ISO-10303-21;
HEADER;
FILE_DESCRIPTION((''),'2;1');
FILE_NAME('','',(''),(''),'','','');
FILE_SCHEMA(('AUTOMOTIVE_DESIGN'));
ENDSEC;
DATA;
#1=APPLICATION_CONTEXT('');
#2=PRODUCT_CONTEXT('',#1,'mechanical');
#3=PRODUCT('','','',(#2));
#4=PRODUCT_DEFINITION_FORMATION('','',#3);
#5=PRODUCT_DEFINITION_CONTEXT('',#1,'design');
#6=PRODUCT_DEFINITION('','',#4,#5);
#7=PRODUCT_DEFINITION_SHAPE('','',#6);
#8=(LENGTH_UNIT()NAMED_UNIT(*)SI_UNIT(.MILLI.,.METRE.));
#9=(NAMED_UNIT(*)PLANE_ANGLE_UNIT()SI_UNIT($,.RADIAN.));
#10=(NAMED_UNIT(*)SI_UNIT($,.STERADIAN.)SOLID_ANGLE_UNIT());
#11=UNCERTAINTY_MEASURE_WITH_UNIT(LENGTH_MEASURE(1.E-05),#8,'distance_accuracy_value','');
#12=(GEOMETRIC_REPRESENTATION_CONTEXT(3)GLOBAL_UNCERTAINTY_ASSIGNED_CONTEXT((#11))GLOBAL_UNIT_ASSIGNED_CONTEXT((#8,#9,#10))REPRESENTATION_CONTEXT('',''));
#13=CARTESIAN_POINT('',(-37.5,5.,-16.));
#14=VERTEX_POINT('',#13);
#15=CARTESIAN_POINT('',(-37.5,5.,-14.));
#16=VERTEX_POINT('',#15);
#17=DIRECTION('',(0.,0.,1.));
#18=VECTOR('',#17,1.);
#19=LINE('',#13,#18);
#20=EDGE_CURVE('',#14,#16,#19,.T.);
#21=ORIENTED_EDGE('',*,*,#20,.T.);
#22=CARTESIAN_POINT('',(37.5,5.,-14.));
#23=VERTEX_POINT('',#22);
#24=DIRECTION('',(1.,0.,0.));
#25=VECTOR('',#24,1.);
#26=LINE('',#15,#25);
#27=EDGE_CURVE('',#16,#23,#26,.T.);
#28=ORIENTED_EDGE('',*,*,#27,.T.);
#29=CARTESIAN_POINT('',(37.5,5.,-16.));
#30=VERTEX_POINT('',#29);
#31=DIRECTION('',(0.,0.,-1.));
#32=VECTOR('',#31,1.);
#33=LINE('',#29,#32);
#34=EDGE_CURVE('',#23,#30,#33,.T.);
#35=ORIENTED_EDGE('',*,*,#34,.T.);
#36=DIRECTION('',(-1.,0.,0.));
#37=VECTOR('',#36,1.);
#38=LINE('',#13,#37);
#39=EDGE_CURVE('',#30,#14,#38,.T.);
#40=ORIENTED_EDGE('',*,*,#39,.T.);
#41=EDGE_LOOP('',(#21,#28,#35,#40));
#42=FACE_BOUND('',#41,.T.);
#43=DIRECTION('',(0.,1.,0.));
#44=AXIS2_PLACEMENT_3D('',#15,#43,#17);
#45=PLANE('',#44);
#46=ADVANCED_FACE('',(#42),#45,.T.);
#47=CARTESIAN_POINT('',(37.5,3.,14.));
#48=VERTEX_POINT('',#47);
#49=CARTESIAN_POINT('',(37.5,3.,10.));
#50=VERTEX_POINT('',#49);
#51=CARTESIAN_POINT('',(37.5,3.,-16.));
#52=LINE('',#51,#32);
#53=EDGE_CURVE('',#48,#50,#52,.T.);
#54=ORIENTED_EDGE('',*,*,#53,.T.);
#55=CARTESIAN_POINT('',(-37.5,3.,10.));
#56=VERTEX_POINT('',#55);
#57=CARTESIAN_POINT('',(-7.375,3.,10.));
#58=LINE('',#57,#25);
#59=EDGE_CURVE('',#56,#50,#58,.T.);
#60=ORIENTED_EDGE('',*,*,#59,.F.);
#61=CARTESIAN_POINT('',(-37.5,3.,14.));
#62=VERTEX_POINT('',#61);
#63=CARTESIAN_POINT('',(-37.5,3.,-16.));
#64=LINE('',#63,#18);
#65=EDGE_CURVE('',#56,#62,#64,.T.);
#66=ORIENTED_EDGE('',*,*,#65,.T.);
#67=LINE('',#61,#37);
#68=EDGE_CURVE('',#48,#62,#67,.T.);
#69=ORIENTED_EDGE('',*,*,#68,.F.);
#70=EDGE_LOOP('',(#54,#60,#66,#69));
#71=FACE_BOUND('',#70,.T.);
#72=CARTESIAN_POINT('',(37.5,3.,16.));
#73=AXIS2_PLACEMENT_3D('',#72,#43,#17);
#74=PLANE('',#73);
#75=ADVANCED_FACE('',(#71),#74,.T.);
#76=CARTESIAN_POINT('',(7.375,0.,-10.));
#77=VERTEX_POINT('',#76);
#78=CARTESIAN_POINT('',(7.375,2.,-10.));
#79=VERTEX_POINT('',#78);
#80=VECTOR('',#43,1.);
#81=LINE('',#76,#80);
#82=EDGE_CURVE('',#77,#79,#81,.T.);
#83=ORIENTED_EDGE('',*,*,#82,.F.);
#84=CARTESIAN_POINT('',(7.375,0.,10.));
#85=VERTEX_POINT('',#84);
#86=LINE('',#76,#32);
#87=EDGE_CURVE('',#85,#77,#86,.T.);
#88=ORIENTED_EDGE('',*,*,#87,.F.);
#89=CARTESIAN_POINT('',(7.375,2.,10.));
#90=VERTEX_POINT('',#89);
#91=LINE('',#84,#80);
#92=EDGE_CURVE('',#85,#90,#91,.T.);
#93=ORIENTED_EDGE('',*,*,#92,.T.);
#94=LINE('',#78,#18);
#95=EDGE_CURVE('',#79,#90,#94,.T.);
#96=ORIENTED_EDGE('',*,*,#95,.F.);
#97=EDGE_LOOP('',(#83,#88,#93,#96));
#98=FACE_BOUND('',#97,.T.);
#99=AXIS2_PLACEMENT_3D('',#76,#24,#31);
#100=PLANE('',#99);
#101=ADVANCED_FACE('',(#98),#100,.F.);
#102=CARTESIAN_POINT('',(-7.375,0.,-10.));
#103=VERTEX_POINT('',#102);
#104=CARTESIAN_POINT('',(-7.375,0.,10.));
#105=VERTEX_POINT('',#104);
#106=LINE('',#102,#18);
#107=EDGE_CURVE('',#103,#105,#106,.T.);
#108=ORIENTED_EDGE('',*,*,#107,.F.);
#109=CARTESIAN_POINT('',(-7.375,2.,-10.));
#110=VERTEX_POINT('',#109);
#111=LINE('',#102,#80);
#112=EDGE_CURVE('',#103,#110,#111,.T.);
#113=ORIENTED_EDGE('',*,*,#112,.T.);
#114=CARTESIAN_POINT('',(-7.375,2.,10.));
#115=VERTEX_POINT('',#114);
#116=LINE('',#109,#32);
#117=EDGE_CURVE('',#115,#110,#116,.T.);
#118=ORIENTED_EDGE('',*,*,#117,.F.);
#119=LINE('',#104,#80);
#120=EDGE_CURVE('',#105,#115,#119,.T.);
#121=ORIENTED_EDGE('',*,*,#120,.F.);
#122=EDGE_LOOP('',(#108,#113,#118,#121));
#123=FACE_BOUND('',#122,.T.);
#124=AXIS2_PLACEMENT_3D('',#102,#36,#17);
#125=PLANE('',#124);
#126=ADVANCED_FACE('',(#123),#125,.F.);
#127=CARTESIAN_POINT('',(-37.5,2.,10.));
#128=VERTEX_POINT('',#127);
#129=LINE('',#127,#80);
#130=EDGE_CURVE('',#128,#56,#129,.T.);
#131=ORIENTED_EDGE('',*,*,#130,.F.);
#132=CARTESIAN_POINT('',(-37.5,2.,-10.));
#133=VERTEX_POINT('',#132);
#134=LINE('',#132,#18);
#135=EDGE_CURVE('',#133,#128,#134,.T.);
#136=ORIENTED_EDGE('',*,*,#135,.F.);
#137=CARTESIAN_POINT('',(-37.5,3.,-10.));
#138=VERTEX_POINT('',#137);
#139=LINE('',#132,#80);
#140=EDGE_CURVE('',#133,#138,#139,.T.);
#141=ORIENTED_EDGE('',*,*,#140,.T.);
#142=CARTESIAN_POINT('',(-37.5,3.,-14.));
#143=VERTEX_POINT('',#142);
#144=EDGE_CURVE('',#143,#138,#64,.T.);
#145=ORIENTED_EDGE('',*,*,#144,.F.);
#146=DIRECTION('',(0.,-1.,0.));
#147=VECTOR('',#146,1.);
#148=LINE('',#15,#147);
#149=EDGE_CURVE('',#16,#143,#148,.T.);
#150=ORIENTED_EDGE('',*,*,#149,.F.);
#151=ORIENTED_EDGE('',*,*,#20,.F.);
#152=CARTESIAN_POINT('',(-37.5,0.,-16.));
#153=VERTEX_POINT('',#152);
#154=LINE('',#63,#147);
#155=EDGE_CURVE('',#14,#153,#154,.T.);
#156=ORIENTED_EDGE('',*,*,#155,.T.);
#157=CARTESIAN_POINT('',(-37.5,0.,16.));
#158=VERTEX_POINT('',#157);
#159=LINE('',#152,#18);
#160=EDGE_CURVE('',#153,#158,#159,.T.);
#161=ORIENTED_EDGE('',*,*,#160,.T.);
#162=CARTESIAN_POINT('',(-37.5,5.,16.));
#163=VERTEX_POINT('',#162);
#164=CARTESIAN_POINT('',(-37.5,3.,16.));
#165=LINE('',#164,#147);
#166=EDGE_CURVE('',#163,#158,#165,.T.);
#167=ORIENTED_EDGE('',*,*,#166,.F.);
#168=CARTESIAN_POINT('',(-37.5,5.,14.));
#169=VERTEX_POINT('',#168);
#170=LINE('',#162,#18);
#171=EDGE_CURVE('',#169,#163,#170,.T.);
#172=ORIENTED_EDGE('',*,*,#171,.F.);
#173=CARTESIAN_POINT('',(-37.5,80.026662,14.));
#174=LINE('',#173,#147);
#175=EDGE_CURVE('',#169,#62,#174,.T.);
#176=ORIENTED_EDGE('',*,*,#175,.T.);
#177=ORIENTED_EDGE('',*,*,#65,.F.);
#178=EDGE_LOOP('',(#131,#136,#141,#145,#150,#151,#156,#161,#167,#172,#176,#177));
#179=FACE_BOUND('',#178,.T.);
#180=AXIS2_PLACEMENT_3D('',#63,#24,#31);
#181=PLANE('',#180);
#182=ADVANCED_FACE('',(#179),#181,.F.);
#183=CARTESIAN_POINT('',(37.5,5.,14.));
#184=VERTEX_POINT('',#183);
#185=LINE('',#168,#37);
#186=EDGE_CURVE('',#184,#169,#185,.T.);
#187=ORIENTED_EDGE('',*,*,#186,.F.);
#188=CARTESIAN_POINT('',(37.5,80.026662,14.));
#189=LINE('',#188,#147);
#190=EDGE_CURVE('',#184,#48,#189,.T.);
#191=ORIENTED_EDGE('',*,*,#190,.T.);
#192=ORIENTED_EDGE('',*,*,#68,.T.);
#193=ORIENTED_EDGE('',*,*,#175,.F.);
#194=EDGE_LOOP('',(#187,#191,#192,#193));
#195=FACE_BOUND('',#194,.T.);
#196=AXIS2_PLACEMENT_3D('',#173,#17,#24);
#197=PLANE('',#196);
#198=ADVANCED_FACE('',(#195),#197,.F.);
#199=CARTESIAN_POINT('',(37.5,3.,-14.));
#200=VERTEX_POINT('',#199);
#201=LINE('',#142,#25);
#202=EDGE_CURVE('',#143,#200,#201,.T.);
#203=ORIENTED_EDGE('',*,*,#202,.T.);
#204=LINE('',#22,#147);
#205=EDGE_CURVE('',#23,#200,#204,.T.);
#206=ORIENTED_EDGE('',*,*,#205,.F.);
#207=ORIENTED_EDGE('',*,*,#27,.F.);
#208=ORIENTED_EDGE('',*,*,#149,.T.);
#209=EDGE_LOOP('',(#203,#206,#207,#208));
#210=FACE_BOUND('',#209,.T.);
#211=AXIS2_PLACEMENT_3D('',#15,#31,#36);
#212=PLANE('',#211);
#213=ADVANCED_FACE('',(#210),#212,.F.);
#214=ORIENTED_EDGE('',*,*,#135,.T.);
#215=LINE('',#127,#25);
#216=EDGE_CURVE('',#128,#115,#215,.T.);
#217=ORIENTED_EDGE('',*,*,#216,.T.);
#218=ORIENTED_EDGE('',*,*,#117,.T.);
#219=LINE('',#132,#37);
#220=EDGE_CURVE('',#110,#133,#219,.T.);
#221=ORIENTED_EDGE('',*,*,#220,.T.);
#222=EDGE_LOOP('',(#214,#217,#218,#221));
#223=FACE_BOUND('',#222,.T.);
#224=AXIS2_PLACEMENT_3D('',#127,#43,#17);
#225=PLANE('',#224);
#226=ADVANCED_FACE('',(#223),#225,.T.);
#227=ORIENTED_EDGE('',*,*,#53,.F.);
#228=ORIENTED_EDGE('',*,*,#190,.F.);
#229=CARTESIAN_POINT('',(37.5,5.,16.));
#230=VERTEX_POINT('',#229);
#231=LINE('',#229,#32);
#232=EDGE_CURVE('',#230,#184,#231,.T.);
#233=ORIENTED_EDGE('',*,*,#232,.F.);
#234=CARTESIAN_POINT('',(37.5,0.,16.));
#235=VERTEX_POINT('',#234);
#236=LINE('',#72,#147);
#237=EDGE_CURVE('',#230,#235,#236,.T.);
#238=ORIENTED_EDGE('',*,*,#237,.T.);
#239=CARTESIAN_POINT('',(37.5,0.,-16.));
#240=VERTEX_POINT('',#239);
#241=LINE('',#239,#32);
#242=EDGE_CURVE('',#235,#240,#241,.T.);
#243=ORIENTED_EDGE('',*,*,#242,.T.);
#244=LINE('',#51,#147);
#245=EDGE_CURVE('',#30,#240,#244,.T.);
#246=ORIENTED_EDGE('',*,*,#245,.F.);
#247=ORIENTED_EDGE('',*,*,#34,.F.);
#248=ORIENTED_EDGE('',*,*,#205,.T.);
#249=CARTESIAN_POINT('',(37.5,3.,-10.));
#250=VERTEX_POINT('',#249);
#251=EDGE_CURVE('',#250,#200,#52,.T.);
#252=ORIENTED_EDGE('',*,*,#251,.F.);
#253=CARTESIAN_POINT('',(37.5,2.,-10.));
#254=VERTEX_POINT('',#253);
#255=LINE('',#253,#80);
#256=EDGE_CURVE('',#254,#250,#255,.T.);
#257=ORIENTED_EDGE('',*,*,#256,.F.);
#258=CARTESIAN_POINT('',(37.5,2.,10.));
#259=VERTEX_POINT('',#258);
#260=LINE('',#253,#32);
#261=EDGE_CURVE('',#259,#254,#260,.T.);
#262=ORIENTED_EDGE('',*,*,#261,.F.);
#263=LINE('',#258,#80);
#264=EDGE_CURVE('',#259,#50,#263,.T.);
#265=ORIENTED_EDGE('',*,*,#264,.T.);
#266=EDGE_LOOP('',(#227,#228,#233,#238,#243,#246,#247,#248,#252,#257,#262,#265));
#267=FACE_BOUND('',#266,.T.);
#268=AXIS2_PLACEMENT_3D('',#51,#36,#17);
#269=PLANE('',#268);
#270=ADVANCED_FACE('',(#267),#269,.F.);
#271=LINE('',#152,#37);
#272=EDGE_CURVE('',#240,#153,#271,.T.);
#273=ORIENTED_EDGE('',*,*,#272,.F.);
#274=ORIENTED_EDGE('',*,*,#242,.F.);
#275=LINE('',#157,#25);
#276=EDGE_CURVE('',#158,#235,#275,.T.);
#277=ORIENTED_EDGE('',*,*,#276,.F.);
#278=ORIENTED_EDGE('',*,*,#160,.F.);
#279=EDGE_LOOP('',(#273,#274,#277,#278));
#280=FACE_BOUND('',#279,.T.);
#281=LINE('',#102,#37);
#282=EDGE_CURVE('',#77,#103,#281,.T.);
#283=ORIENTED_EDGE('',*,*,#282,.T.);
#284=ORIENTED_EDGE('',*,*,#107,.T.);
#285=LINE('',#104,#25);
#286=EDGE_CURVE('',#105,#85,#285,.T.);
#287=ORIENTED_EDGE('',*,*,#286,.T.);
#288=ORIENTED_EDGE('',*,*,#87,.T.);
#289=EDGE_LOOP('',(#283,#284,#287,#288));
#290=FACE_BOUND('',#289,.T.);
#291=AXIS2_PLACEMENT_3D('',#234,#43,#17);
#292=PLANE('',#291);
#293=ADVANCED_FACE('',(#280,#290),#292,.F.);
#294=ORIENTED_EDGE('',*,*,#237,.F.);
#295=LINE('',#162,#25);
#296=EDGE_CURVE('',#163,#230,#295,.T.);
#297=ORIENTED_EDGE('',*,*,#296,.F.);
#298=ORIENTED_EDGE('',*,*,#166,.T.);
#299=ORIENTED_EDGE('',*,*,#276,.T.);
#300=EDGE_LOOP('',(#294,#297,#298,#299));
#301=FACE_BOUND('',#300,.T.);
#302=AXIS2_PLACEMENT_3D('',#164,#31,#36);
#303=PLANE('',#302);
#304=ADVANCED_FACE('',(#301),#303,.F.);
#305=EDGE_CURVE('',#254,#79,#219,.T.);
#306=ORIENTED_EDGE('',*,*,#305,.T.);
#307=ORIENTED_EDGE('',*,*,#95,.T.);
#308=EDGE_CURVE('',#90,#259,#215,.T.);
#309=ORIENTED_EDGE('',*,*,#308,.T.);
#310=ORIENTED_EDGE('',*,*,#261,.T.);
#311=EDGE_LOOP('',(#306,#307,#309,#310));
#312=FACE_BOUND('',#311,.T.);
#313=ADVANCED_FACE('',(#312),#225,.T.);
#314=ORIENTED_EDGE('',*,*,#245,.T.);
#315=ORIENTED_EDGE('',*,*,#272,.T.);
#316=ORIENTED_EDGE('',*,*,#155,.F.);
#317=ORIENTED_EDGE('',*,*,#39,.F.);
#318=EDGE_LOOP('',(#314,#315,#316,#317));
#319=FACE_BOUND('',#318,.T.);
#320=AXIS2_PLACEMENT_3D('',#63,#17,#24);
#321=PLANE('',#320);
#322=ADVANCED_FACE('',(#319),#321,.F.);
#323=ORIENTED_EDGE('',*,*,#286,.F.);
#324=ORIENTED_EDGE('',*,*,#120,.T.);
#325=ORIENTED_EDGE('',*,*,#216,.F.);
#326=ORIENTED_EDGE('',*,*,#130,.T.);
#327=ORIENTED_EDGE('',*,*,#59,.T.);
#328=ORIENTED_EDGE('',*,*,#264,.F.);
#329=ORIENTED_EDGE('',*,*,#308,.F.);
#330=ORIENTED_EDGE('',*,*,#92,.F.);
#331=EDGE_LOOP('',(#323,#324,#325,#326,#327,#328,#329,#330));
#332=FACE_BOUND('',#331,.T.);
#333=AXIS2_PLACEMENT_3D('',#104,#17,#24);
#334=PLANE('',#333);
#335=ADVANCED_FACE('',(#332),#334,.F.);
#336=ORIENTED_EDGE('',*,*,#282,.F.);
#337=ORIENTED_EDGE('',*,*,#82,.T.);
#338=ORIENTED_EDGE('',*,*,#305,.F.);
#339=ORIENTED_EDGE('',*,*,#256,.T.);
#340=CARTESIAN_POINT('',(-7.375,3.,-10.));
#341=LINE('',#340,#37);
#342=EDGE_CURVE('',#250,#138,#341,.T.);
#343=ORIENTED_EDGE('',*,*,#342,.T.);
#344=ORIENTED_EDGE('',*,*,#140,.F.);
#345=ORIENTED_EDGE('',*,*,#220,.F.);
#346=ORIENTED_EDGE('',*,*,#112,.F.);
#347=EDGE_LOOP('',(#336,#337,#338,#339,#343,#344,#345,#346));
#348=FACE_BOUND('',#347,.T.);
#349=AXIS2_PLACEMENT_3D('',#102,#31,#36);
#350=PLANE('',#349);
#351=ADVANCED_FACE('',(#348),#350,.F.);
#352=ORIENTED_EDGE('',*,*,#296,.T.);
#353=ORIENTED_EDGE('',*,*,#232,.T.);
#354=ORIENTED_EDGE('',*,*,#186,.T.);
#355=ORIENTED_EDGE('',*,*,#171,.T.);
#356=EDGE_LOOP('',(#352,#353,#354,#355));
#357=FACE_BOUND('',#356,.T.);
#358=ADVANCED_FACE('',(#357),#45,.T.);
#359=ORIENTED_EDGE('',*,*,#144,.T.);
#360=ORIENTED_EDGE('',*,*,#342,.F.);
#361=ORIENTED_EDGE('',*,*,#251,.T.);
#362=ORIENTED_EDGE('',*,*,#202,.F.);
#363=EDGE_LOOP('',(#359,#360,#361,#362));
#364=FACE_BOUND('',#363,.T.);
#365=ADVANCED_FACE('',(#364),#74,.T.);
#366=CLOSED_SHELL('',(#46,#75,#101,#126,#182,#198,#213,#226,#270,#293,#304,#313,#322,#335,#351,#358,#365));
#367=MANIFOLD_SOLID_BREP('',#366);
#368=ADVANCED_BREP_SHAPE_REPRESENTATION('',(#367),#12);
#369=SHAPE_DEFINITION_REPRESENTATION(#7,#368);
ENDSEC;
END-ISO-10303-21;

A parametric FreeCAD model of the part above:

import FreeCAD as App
import Part
import Sketcher
from FreeCAD import Vector
Q = App.Units.Quantity


def add_polygon(sketch, points):
    """Adds a closed chain of lines whose ends are joined by coincident constraints."""
    first, n = sketch.GeometryCount, len(points)
    for a, b in zip(points, points[1:] + points[:1]):
        sketch.addGeometry(Part.LineSegment(App.Vector(*a, 0), App.Vector(*b, 0)), False)
    for i in range(n):
        sketch.addConstraint(Sketcher.Constraint("Coincident", first + i, 2, first + (i + 1) % n, 1))

doc = App.newDocument("Part")
body = doc.addObject("PartDesign::Body", "Body")

sketch1 = body.newObject("Sketcher::SketchObject", "Sketch")
sketch1.AttachmentSupport = (doc.getObject("XZ_Plane"), [""])
sketch1.MapMode = "FlatFace"
add_polygon(sketch1, [(-38, -16), (-38, 16), (38, 16), (38, -16)])
sketch1.addConstraint([
    Sketcher.Constraint("Vertical", 0),
    Sketcher.Constraint("Horizontal", 1),
    Sketcher.Constraint("Vertical", 2),
    Sketcher.Constraint("Horizontal", 3),
    Sketcher.Constraint("Symmetric", 0, 2, 2, 2, -1, 1),
    Sketcher.Constraint("DistanceX", 1, 1, 1, 2, Q("75 mm")),
    Sketcher.Constraint("DistanceY", 0, 1, 0, 2, Q("32 mm")),
])
pad1 = body.newObject("PartDesign::Pad", "Pad")
pad1.Profile = sketch1
pad1.Length = 3
pad1.Reversed = True

sketch2 = body.newObject("Sketcher::SketchObject", "Sketch001")
sketch2.AttachmentSupport = (doc.getObject("XZ_Plane"), [""])
sketch2.MapMode = "FlatFace"
sketch2.AttachmentOffset = App.Placement(Vector(0, 0, -3), App.Rotation())
add_polygon(sketch2, [(-37.5, -16), (-37.5, -14), (37.5, -14), (37.5, -16)])
sketch2.addConstraint([
    Sketcher.Constraint("Vertical", 0),
    Sketcher.Constraint("Horizontal", 1),
    Sketcher.Constraint("Vertical", 2),
    Sketcher.Constraint("Horizontal", 3),
    Sketcher.Constraint("DistanceX", 1, 1, 1, 2, Q("75 mm")),
    Sketcher.Constraint("DistanceY", 0, 1, 0, 2, Q("2 mm")),
    Sketcher.Constraint("DistanceY", 0, 2, -1, 1, Q("14 mm")),
    Sketcher.Constraint("DistanceX", 0, 2, -1, 1, Q("37.5 mm")),
])
pad2 = body.newObject("PartDesign::Pad", "Pad001")
pad2.Profile = sketch2
pad2.Length = 2
pad2.Reversed = True

sketch3 = body.newObject("Sketcher::SketchObject", "Sketch002")
sketch3.AttachmentSupport = (doc.getObject("XZ_Plane"), [""])
sketch3.MapMode = "FlatFace"
sketch3.AttachmentOffset = App.Placement(Vector(0, 0, -3), App.Rotation())
add_polygon(sketch3, [(-37.5, 14), (-37.5, 16), (37.5, 16), (37.5, 14)])
sketch3.addConstraint([
    Sketcher.Constraint("Vertical", 0),
    Sketcher.Constraint("Horizontal", 1),
    Sketcher.Constraint("Vertical", 2),
    Sketcher.Constraint("Horizontal", 3),
    Sketcher.Constraint("DistanceX", 1, 1, 1, 2, Q("75 mm")),
    Sketcher.Constraint("DistanceY", 0, 1, 0, 2, Q("2 mm")),
    Sketcher.Constraint("DistanceY", -1, 1, 0, 2, Q("16 mm")),
    Sketcher.Constraint("DistanceX", 0, 2, -1, 1, Q("37.5 mm")),
])
pad3 = body.newObject("PartDesign::Pad", "Pad002")
pad3.Profile = sketch3
pad3.Length = 2
pad3.Reversed = True

sketch4 = body.newObject("Sketcher::SketchObject", "Sketch003")
sketch4.AttachmentSupport = (doc.getObject("XZ_Plane"), [""])
sketch4.MapMode = "FlatFace"
sketch4.AttachmentOffset = App.Placement(Vector(0, 0, -3), App.Rotation())
add_polygon(sketch4, [(-7, -10), (-7, 10), (7, 10), (7, -10)])
sketch4.addConstraint([
    Sketcher.Constraint("Vertical", 0),
    Sketcher.Constraint("Horizontal", 1),
    Sketcher.Constraint("Vertical", 2),
    Sketcher.Constraint("Horizontal", 3),
    Sketcher.Constraint("Symmetric", 0, 2, 2, 2, -1, 1),
    Sketcher.Constraint("DistanceY", 0, 1, 0, 2, Q("20 mm")),
    Sketcher.Constraint("DistanceX", 1, 1, 1, 2, Q("14.75 mm")),
])
pocket1 = body.newObject("PartDesign::Pocket", "Pocket")
pocket1.Profile = sketch4
pocket1.Type = "ThroughAll"
pocket1.Reversed = True

sketch5 = body.newObject("Sketcher::SketchObject", "Sketch004")
sketch5.AttachmentSupport = (doc.getObject("XZ_Plane"), [""])
sketch5.MapMode = "FlatFace"
sketch5.AttachmentOffset = App.Placement(Vector(0, 0, -3), App.Rotation())
add_polygon(sketch5, [(-38, -10), (-38, 10), (38, 10), (38, -10)])
sketch5.addConstraint([
    Sketcher.Constraint("Vertical", 0),
    Sketcher.Constraint("Horizontal", 1),
    Sketcher.Constraint("Vertical", 2),
    Sketcher.Constraint("Horizontal", 3),
    Sketcher.Constraint("Symmetric", 0, 2, 2, 2, -1, 1),
    Sketcher.Constraint("DistanceX", 1, 1, 1, 2, Q("75 mm")),
    Sketcher.Constraint("DistanceY", 0, 1, 0, 2, Q("20 mm")),
])
pocket2 = body.newObject("PartDesign::Pocket", "Pocket001")
pocket2.Profile = sketch5
pocket2.Length = 1
pocket2.Reversed = True

doc.recompute()
